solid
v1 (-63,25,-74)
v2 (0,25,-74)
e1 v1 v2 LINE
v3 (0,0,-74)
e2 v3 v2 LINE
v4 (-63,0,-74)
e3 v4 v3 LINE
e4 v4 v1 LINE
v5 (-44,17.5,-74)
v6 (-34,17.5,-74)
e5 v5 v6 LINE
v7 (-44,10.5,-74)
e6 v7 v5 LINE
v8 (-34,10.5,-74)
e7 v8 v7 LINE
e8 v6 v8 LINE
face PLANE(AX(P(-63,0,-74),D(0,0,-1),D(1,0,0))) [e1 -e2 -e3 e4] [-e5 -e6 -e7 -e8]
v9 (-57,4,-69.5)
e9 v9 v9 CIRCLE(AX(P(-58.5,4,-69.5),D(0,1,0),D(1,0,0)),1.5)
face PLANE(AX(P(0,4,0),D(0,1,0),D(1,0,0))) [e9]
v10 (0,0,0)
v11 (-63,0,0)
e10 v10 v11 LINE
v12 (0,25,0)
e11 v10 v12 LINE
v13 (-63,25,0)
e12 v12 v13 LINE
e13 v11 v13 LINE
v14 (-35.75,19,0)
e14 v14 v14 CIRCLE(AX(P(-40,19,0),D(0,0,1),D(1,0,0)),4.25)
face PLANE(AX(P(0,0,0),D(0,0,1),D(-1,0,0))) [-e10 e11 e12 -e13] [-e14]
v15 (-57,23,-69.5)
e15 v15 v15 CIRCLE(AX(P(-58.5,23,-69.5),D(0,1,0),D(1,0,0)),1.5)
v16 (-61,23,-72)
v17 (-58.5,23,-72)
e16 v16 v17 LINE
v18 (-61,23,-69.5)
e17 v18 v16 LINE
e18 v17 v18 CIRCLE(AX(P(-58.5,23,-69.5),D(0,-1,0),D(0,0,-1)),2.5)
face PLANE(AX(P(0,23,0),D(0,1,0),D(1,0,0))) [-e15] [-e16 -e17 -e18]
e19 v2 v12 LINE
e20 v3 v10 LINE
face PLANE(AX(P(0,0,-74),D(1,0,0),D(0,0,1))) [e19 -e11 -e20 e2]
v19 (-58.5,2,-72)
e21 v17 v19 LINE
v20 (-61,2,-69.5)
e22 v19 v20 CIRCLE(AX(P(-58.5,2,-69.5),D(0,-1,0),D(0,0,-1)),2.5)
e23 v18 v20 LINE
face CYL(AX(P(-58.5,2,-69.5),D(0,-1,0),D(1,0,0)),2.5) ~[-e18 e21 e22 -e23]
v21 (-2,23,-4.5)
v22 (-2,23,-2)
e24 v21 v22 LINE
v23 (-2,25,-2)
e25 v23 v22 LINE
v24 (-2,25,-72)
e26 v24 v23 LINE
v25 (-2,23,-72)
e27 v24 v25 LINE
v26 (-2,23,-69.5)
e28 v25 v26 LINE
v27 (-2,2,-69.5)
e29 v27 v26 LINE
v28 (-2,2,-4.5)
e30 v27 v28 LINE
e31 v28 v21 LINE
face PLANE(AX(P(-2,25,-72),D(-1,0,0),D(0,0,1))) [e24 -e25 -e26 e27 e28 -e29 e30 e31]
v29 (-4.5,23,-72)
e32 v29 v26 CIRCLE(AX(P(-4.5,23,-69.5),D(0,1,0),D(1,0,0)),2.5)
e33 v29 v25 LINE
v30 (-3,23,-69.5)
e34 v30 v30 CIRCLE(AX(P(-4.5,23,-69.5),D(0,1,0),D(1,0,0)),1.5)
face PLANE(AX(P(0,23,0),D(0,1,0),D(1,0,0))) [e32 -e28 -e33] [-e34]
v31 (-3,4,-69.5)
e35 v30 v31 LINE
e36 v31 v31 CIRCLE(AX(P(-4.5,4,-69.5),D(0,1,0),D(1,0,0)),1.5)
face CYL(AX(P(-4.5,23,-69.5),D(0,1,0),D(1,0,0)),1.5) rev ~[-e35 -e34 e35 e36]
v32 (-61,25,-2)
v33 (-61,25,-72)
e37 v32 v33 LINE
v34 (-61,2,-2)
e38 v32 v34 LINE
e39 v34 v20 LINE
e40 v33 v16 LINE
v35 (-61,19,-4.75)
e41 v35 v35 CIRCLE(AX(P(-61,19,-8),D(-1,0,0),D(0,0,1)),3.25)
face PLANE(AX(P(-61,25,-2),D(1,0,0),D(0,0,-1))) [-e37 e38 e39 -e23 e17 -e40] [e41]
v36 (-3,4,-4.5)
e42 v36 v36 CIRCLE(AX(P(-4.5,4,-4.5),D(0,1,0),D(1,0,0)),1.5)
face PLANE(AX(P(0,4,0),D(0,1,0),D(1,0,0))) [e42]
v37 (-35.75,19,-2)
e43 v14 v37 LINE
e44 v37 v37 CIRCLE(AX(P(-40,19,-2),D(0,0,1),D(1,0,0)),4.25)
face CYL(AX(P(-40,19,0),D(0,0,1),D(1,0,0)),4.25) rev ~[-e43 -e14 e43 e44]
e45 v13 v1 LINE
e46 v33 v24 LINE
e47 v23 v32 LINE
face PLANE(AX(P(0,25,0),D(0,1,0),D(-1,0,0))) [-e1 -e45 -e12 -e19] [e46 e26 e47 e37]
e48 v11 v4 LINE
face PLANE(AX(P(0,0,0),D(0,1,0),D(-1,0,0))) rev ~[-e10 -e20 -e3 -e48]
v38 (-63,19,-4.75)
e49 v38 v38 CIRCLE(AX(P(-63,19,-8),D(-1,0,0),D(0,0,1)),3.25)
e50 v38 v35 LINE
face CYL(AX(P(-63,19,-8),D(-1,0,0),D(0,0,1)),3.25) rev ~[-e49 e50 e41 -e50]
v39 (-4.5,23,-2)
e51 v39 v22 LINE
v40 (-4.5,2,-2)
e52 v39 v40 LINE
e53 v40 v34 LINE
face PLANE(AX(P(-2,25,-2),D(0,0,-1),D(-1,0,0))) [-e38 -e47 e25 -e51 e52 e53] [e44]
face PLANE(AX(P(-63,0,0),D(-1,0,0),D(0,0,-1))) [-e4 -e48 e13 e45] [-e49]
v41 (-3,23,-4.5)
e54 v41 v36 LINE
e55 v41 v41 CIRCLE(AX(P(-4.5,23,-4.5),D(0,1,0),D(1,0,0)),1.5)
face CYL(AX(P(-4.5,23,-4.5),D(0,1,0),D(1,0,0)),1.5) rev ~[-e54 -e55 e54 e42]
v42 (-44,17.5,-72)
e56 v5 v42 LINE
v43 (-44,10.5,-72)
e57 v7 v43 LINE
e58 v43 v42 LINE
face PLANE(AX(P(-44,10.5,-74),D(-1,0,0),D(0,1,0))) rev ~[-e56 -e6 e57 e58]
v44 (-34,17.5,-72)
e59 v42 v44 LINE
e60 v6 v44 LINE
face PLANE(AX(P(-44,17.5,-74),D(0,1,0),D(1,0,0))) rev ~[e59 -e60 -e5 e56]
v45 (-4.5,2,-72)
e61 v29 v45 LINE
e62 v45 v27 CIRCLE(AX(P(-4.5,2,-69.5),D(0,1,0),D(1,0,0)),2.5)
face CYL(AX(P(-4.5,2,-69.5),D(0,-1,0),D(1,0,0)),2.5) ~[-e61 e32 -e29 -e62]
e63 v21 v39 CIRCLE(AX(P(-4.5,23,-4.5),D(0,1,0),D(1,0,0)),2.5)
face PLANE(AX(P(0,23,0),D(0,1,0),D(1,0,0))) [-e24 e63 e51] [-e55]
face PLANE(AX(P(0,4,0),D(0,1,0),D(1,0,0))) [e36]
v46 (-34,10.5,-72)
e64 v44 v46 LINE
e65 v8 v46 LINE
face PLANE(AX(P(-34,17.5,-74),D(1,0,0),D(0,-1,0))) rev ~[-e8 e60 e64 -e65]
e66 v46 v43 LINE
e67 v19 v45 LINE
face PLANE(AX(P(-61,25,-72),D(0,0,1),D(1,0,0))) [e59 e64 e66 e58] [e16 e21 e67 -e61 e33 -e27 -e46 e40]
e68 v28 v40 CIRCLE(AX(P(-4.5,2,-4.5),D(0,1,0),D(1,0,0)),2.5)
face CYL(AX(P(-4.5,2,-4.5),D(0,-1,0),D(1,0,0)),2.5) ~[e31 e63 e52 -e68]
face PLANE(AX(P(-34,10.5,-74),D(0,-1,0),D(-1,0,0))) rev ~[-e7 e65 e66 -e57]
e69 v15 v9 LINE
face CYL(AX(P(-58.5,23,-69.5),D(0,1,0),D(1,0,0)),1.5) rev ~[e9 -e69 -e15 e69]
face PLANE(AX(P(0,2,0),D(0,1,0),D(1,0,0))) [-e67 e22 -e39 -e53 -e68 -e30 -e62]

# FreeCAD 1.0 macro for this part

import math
import FreeCAD as App
import Part
import Sketcher

V = App.Vector
Q = App.Units.Quantity


def add_polygon(sketch, points):
    """Adds a closed chain of lines whose ends are joined by coincident constraints."""
    first, n = sketch.GeometryCount, len(points)
    for a, b in zip(points, points[1:] + points[:1]):
        sketch.addGeometry(Part.LineSegment(App.Vector(*a, 0), App.Vector(*b, 0)), False)
    for i in range(n):
        sketch.addConstraint(Sketcher.Constraint("Coincident", first + i, 2, first + (i + 1) % n, 1))

doc = App.newDocument("Part")
params = doc.addObject("Spreadsheet::Sheet", "Params")
for row, (alias, value) in enumerate([
    ("sketch1_width", "63 mm"),
    ("sketch1_height", "74 mm"),
    ("pad1_length", "25 mm"),
    ("sketch2_width", "59 mm"),
    ("sketch2_height", "70 mm"),
    ("pocket1_length", "23 mm"),
    ("sketch3_width", "10 mm"),
    ("sketch3_height", "7 mm"),
    ("sketch4_diameter", "6.5 mm"),
    ("sketch5_diameter", "8.5 mm"),
    ("sketch6_diameter", "5 mm"),
    ("pad2_length", "21 mm"),
    ("sketch7_diameter", "3 mm"),
    ("pocket5_length", "19 mm"),
    ("sketch8_radius", "2.5 mm"),
    ("pad3_length", "21 mm"),
], start=1):
    params.set(f"A{row}", alias)
    params.set(f"B{row}", "=" + value)
    params.setAlias(f"B{row}", alias)

body = doc.addObject("PartDesign::Body", "Body")

# Sketch on XZ plane
sketch1 = body.newObject("Sketcher::SketchObject", "Sketch")
sketch1.AttachmentSupport = (doc.getObject("XZ_Plane"), [""])
sketch1.MapMode = "FlatFace"
add_polygon(sketch1, [(-63, 0), (0, 0), (0, -74), (-63, -74)])  # lines 0-3
sketch1.addConstraint([
    Sketcher.Constraint("Horizontal", 0),
    Sketcher.Constraint("Vertical", 1),
    Sketcher.Constraint("Horizontal", 2),
    Sketcher.Constraint("Vertical", 3),
    Sketcher.Constraint("Coincident", 0, 2, -1, 1),
    Sketcher.Constraint("DistanceX", 0, 1, 0, 2, Q("63 mm")),
    Sketcher.Constraint("DistanceY", 1, 2, 1, 1, Q("74 mm")),
])
sketch1.setExpression("Constraints[9]", "Params.sketch1_width")
sketch1.setExpression("Constraints[10]", "Params.sketch1_height")
pad1 = body.newObject("PartDesign::Pad", "Pad")
pad1.Profile = sketch1
pad1.setExpression("Length", "Params.pad1_length")
pad1.Reversed = True

# Sketch on XZ plane
sketch2 = body.newObject("Sketcher::SketchObject", "Sketch001")
sketch2.AttachmentSupport = (doc.getObject("XZ_Plane"), [""])
sketch2.MapMode = "FlatFace"
sketch2.AttachmentOffset = App.Placement(V(0, 0, -25), App.Rotation())
add_polygon(sketch2, [(-61, -2), (-2, -2), (-2, -72), (-61, -72)])  # lines 0-3
sketch2.addConstraint([
    Sketcher.Constraint("Horizontal", 0),
    Sketcher.Constraint("Vertical", 1),
    Sketcher.Constraint("Horizontal", 2),
    Sketcher.Constraint("Vertical", 3),
    Sketcher.Constraint("DistanceX", 0, 1, 0, 2, Q("59 mm")),
    Sketcher.Constraint("DistanceY", 1, 2, 1, 1, Q("70 mm")),
    Sketcher.Constraint("DistanceX", 0, 2, -1, 1, Q("2 mm")),
    Sketcher.Constraint("DistanceY", 0, 2, -1, 1, Q("2 mm")),
])
sketch2.setExpression("Constraints[8]", "Params.sketch2_width")
sketch2.setExpression("Constraints[9]", "Params.sketch2_height")
pocket1 = body.newObject("PartDesign::Pocket", "Pocket")
pocket1.Profile = sketch2
pocket1.setExpression("Length", "Params.pocket1_length")
pocket1.Reversed = True

# Sketch on XY plane
sketch3 = body.newObject("Sketcher::SketchObject", "Sketch002")
sketch3.AttachmentSupport = (doc.getObject("XY_Plane"), [""])
sketch3.MapMode = "FlatFace"
sketch3.AttachmentOffset = App.Placement(V(0, 0, -74), App.Rotation())
add_polygon(sketch3, [(-44, 10), (-44, 18), (-34, 18), (-34, 10)])  # lines 0-3
sketch3.addConstraint([
    Sketcher.Constraint("Vertical", 0),
    Sketcher.Constraint("Horizontal", 1),
    Sketcher.Constraint("Vertical", 2),
    Sketcher.Constraint("Horizontal", 3),
    Sketcher.Constraint("DistanceX", 1, 1, 1, 2, Q("10 mm")),
    Sketcher.Constraint("DistanceY", 0, 1, 0, 2, Q("7 mm")),
    Sketcher.Constraint("DistanceX", 0, 2, -1, 1, Q("44 mm")),
    Sketcher.Constraint("DistanceY", -1, 1, 0, 2, Q("17.5 mm")),
])
sketch3.setExpression("Constraints[8]", "Params.sketch3_width")
sketch3.setExpression("Constraints[9]", "Params.sketch3_height")
pocket2 = body.newObject("PartDesign::Pocket", "Pocket001")
pocket2.Profile = sketch3
pocket2.Type = "UpToFirst"
pocket2.Reversed = True

# Sketch on YZ plane
sketch4 = body.newObject("Sketcher::SketchObject", "Sketch003")
sketch4.AttachmentSupport = (doc.getObject("YZ_Plane"), [""])
sketch4.MapMode = "FlatFace"
sketch4.AttachmentOffset = App.Placement(V(0, 0, -63), App.Rotation())
sketch4.addGeometry(Part.Circle(V(19, -8, 0), V(0, 0, 1), 3.2), False)
sketch4.addConstraint([
    Sketcher.Constraint("Diameter", 0, Q("6.5 mm")),
    Sketcher.Constraint("DistanceY", 0, 3, -1, 1, Q("8 mm")),
    Sketcher.Constraint("DistanceX", -1, 1, 0, 3, Q("19 mm")),
])
sketch4.setExpression("Constraints[0]", "Params.sketch4_diameter")
pocket3 = body.newObject("PartDesign::Pocket", "Pocket002")
pocket3.Profile = sketch4
pocket3.Type = "UpToFirst"
pocket3.Reversed = True

# Sketch on XY plane
sketch5 = body.newObject("Sketcher::SketchObject", "Sketch004")
sketch5.AttachmentSupport = (doc.getObject("XY_Plane"), [""])
sketch5.MapMode = "FlatFace"
sketch5.addGeometry(Part.Circle(V(-40, 19, 0), V(0, 0, 1), 4.2), False)
sketch5.addConstraint([
    Sketcher.Constraint("Diameter", 0, Q("8.5 mm")),
    Sketcher.Constraint("DistanceX", 0, 3, -1, 1, Q("40 mm")),
    Sketcher.Constraint("DistanceY", -1, 1, 0, 3, Q("19 mm")),
])
sketch5.setExpression("Constraints[0]", "Params.sketch5_diameter")
pocket4 = body.newObject("PartDesign::Pocket", "Pocket003")
pocket4.Profile = sketch5
pocket4.Type = "UpToFirst"

# Sketch on XZ plane
sketch6 = body.newObject("Sketcher::SketchObject", "Sketch005")
sketch6.AttachmentSupport = (doc.getObject("XZ_Plane"), [""])
sketch6.MapMode = "FlatFace"
sketch6.AttachmentOffset = App.Placement(V(0, 0, -2), App.Rotation())
sketch6.addGeometry([
    Part.Circle(V(-4.5, -4.5, 0), V(0, 0, 1), 2.5),
    Part.Circle(V(-4.5, -69.5, 0), V(0, 0, 1), 2.5),
    Part.Circle(V(-58.5, -69.5, 0), V(0, 0, 1), 2.5),
], False)
sketch6.addConstraint([
    Sketcher.Constraint("Equal", 0, 1),
    Sketcher.Constraint("Equal", 1, 2),
    Sketcher.Constraint("Horizontal", 1, 3, 2, 3),
    Sketcher.Constraint("Vertical", 0, 3, 1, 3),
    Sketcher.Constraint("Diameter", 0, Q("5 mm")),
    Sketcher.Constraint("DistanceX", 0, 3, -1, 1, Q("4.5 mm")),
    Sketcher.Constraint("DistanceY", 0, 3, -1, 1, Q("4.5 mm")),
    Sketcher.Constraint("DistanceY", 1, 3, 0, 3, Q("65 mm")),
    Sketcher.Constraint("DistanceX", 2, 3, 1, 3, Q("54 mm")),
])
sketch6.setExpression("Constraints[4]", "Params.sketch6_diameter")
pad2 = body.newObject("PartDesign::Pad", "Pad001")
pad2.Profile = sketch6
pad2.setExpression("Length", "Params.pad2_length")
pad2.Reversed = True

# Sketch on XZ plane
sketch7 = body.newObject("Sketcher::SketchObject", "Sketch006")
sketch7.AttachmentSupport = (doc.getObject("XZ_Plane"), [""])
sketch7.MapMode = "FlatFace"
sketch7.AttachmentOffset = App.Placement(V(0, 0, -23), App.Rotation())
sketch7.addGeometry([
    Part.Circle(V(-4.5, -69.5, 0), V(0, 0, 1), 1.5),
    Part.Circle(V(-58.5, -69.5, 0), V(0, 0, 1), 1.5),
    Part.Circle(V(-4.5, -4.5, 0), V(0, 0, 1), 1.5),
], False)
sketch7.addConstraint([
    Sketcher.Constraint("Equal", 0, 1),
    Sketcher.Constraint("Equal", 1, 2),
    Sketcher.Constraint("Horizontal", 0, 3, 1, 3),
    Sketcher.Constraint("Vertical", 0, 3, 2, 3),
    Sketcher.Constraint("Diameter", 0, Q("3 mm")),
    Sketcher.Constraint("DistanceX", 1, 3, 0, 3, Q("54 mm")),
    Sketcher.Constraint("DistanceY", 0, 3, 2, 3, Q("65 mm")),
    Sketcher.Constraint("DistanceX", 0, 3, -1, 1, Q("4.5 mm")),
    Sketcher.Constraint("DistanceY", 0, 3, -1, 1, Q("69.5 mm")),
])
sketch7.setExpression("Constraints[4]", "Params.sketch7_diameter")
pocket5 = body.newObject("PartDesign::Pocket", "Pocket004")
pocket5.Profile = sketch7
pocket5.setExpression("Length", "Params.pocket5_length")
pocket5.Reversed = True

# Sketch on XZ plane
sketch8 = body.newObject("Sketcher::SketchObject", "Sketch007")
sketch8.AttachmentSupport = (doc.getObject("XZ_Plane"), [""])
sketch8.MapMode = "FlatFace"
sketch8.AttachmentOffset = App.Placement(V(0, 0, -2), App.Rotation())
sketch8.addGeometry([
    Part.ArcOfCircle(Part.Circle(V(-4.5, -4.5, 0), V(0, 0, 1), 2.5), math.radians(0), math.radians(90)),  # 0
    Part.LineSegment(V(-4.5, -2, 0), V(-2, -2, 0)),  # 1
    Part.LineSegment(V(-2, -2, 0), V(-2, -4.5, 0)),  # 2
    Part.LineSegment(V(-2, -72, 0), V(-4.5, -72, 0)),  # 3
    Part.ArcOfCircle(Part.Circle(V(-4.5, -69.5, 0), V(0, 0, 1), 2.5), math.radians(-90), math.radians(0)),  # 4
    Part.LineSegment(V(-2, -69.5, 0), V(-2, -72, 0)),  # 5
    Part.ArcOfCircle(Part.Circle(V(-58.5, -69.5, 0), V(0, 0, 1), 2.5), math.radians(180), math.radians(270)),  # 6
    Part.LineSegment(V(-58.5, -72, 0), V(-61, -72, 0)),  # 7
    Part.LineSegment(V(-61, -72, 0), V(-61, -69.5, 0)),  # 8
], False)
sketch8.addConstraint([
    Sketcher.Constraint("Tangent", 0, 2, 1, 1),
    Sketcher.Constraint("Coincident", 1, 2, 2, 1),
    Sketcher.Constraint("Tangent", 2, 2, 0, 1),
    Sketcher.Constraint("Tangent", 3, 2, 4, 1),
    Sketcher.Constraint("Tangent", 4, 2, 5, 1),
    Sketcher.Constraint("Coincident", 5, 2, 3, 1),
    Sketcher.Constraint("Tangent", 6, 2, 7, 1),
    Sketcher.Constraint("Coincident", 7, 2, 8, 1),
    Sketcher.Constraint("Tangent", 8, 2, 6, 1),
    Sketcher.Constraint("Horizontal", 1),
    Sketcher.Constraint("Vertical", 2),
    Sketcher.Constraint("Horizontal", 3),
    Sketcher.Constraint("Vertical", 5),
    Sketcher.Constraint("Horizontal", 7),
    Sketcher.Constraint("Vertical", 8),
    Sketcher.Constraint("Equal", 0, 4),
    Sketcher.Constraint("Equal", 4, 6),
    Sketcher.Constraint("Horizontal", 4, 3, 6, 3),
    Sketcher.Constraint("Vertical", 0, 3, 4, 3),
    Sketcher.Constraint("Radius", 0, Q("2.5 mm")),
    Sketcher.Constraint("DistanceY", 0, 2, -1, 1, Q("2 mm")),
    Sketcher.Constraint("DistanceX", 1, 2, -1, 1, Q("2 mm")),
    Sketcher.Constraint("DistanceY", 3, 2, -1, 1, Q("72 mm")),
    Sketcher.Constraint("DistanceX", 7, 2, -1, 1, Q("61 mm")),
])
sketch8.setExpression("Constraints[19]", "Params.sketch8_radius")
pad3 = body.newObject("PartDesign::Pad", "Pad002")
pad3.Profile = sketch8
pad3.setExpression("Length", "Params.pad3_length")
pad3.Reversed = True

doc.recompute()
